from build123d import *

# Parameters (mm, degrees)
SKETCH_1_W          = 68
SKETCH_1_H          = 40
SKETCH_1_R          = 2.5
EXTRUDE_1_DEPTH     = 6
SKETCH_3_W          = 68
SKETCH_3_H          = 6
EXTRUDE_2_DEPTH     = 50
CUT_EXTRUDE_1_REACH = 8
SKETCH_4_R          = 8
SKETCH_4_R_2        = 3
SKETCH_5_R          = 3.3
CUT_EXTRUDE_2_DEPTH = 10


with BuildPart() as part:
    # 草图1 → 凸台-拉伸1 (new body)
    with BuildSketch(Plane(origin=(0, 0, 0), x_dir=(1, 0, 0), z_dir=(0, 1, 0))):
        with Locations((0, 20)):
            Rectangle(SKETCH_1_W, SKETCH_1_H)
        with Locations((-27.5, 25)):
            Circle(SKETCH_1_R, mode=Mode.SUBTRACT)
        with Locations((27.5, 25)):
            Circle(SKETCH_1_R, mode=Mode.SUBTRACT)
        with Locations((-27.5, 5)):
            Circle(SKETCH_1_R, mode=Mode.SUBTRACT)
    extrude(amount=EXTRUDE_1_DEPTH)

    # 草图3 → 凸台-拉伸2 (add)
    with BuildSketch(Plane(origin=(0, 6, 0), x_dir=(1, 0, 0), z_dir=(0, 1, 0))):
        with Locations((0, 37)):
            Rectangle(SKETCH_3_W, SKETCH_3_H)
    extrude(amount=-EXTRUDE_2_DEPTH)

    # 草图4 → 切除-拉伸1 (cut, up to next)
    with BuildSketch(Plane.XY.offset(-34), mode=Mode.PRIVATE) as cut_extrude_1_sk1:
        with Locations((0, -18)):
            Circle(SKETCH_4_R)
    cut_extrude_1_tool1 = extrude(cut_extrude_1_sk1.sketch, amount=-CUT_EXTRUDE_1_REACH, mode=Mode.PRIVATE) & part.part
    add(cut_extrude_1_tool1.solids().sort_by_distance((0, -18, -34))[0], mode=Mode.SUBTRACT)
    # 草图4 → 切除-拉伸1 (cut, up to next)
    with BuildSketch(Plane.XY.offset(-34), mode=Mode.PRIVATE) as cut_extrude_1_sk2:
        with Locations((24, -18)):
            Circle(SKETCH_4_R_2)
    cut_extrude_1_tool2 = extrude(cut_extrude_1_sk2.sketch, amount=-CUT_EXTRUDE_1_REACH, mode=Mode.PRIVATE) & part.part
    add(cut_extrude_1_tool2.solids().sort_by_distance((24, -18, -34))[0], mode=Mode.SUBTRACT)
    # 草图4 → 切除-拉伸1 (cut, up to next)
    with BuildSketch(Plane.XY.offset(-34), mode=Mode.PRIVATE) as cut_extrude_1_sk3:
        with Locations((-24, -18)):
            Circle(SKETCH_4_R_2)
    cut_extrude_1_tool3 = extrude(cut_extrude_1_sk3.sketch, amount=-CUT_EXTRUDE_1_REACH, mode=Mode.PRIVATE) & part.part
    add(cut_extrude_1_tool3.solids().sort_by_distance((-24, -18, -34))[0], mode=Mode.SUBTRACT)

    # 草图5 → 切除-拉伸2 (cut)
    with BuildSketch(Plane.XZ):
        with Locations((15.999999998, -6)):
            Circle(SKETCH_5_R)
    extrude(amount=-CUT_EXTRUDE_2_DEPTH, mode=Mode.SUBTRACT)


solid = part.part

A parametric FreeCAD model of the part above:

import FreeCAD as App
import Part
import Sketcher
from FreeCAD import Vector
Q = App.Units.Quantity

doc = App.newDocument("Part")
body = doc.addObject("PartDesign::Body", "Body")

# Sketch on XZ plane
sketch1 = body.newObject("Sketcher::SketchObject", "Sketch")
sketch1.AttachmentSupport = (doc.getObject("XZ_Plane"), [""])
sketch1.MapMode = "FlatFace"
sketch1.addGeometry([
    Part.LineSegment(Vector(-34, -40, 0), Vector(-34, 0, 0)),  # 0
    Part.LineSegment(Vector(-34, 0, 0), Vector(34, 0, 0)),  # 1
    Part.LineSegment(Vector(34, 0, 0), Vector(34, -40, 0)),  # 2
    Part.LineSegment(Vector(34, -40, 0), Vector(-34, -40, 0)),  # 3
    Part.Circle(Vector(-27.5, -5, 0), Vector(0, 0, 1), 2.5),  # 4
    Part.Circle(Vector(-27.5, -25, 0), Vector(0, 0, 1), 2.5),  # 5
    Part.Circle(Vector(27.5, -25, 0), Vector(0, 0, 1), 2.5),  # 6
], False)
sketch1.addConstraint([
    Sketcher.Constraint("Coincident", 0, 2, 1, 1),
    Sketcher.Constraint("Coincident", 1, 2, 2, 1),
    Sketcher.Constraint("Coincident", 2, 2, 3, 1),
    Sketcher.Constraint("Coincident", 3, 2, 0, 1),
    Sketcher.Constraint("Vertical", 0),
    Sketcher.Constraint("Horizontal", 1),
    Sketcher.Constraint("Vertical", 2),
    Sketcher.Constraint("Horizontal", 3),
    Sketcher.Constraint("Equal", 4, 5),
    Sketcher.Constraint("Equal", 5, 6),
    Sketcher.Constraint("Symmetric", 0, 2, 1, 2, -1, 1),
    Sketcher.Constraint("Symmetric", 5, 3, 6, 3, -2),
    Sketcher.Constraint("Vertical", 4, 3, 5, 3),
    Sketcher.Constraint("Diameter", 4, Q("5 mm")),
    Sketcher.Constraint("DistanceX", 1, 1, 1, 2, Q("68 mm")),
    Sketcher.Constraint("DistanceY", 0, 1, 0, 2, Q("40 mm")),
    Sketcher.Constraint("DistanceY", 4, 3, -1, 1, Q("5 mm")),
    Sketcher.Constraint("DistanceY", 5, 3, -1, 1, Q("25 mm")),
    Sketcher.Constraint("DistanceX", 5, 3, 6, 3, Q("55 mm")),
])
pad1 = body.newObject("PartDesign::Pad", "Pad")
pad1.Profile = sketch1
pad1.Length = 6
pad1.Reversed = True

# Sketch on XZ plane
sketch2 = body.newObject("Sketcher::SketchObject", "Sketch001")
sketch2.AttachmentSupport = (doc.getObject("XZ_Plane"), [""])
sketch2.MapMode = "FlatFace"
sketch2.AttachmentOffset = App.Placement(Vector(0, 0, -6), App.Rotation())
sketch2.addGeometry([
    Part.LineSegment(Vector(-34, -40, 0), Vector(-34, -34, 0)),
    Part.LineSegment(Vector(-34, -34, 0), Vector(34, -34, 0)),
    Part.LineSegment(Vector(34, -34, 0), Vector(34, -40, 0)),
    Part.LineSegment(Vector(34, -40, 0), Vector(-34, -40, 0)),
], False)
sketch2.addConstraint([
    Sketcher.Constraint("Coincident", 0, 2, 1, 1),
    Sketcher.Constraint("Coincident", 1, 2, 2, 1),
    Sketcher.Constraint("Coincident", 2, 2, 3, 1),
    Sketcher.Constraint("Coincident", 3, 2, 0, 1),
    Sketcher.Constraint("Vertical", 0),
    Sketcher.Constraint("Horizontal", 1),
    Sketcher.Constraint("Vertical", 2),
    Sketcher.Constraint("Horizontal", 3),
    Sketcher.Constraint("DistanceX", 1, 1, 1, 2, Q("68 mm")),
    Sketcher.Constraint("DistanceY", 0, 1, 0, 2, Q("6 mm")),
    Sketcher.Constraint("DistanceX", 0, 2, -1, 1, Q("34 mm")),
    Sketcher.Constraint("DistanceY", 0, 2, -1, 1, Q("34 mm")),
])
pad2 = body.newObject("PartDesign::Pad", "Pad001")
pad2.Profile = sketch2
pad2.Length = 50

# Sketch on XY plane
sketch3 = body.newObject("Sketcher::SketchObject", "Sketch002")
sketch3.AttachmentSupport = (doc.getObject("XY_Plane"), [""])
sketch3.MapMode = "FlatFace"
sketch3.AttachmentOffset = App.Placement(Vector(0, 0, -34), App.Rotation())
sketch3.addGeometry(Part.Circle(Vector(0, -18, 0), Vector(0, 0, 1), 8), False)
sketch3.addConstraint([
    Sketcher.Constraint("PointOnObject", 0, 3, -2),
    Sketcher.Constraint("Diameter", 0, Q("16 mm")),
    Sketcher.Constraint("DistanceY", 0, 3, -1, 1, Q("18 mm")),
])
pocket1 = body.newObject("PartDesign::Pocket", "Pocket")
pocket1.Profile = sketch3
pocket1.Type = "UpToFirst"

# Sketch on XY plane
sketch4 = body.newObject("Sketcher::SketchObject", "Sketch003")
sketch4.AttachmentSupport = (doc.getObject("XY_Plane"), [""])
sketch4.MapMode = "FlatFace"
sketch4.AttachmentOffset = App.Placement(Vector(0, 0, -34), App.Rotation())
sketch4.addGeometry(Part.Circle(Vector(24, -18, 0), Vector(0, 0, 1), 3), False)
sketch4.addConstraint([
    Sketcher.Constraint("Diameter", 0, Q("6 mm")),
    Sketcher.Constraint("DistanceX", -1, 1, 0, 3, Q("24 mm")),
    Sketcher.Constraint("DistanceY", 0, 3, -1, 1, Q("18 mm")),
])
pocket2 = body.newObject("PartDesign::Pocket", "Pocket001")
pocket2.Profile = sketch4
pocket2.Type = "UpToFirst"

# Sketch on XY plane
sketch5 = body.newObject("Sketcher::SketchObject", "Sketch004")
sketch5.AttachmentSupport = (doc.getObject("XY_Plane"), [""])
sketch5.MapMode = "FlatFace"
sketch5.AttachmentOffset = App.Placement(Vector(0, 0, -34), App.Rotation())
sketch5.addGeometry(Part.Circle(Vector(-24, -18, 0), Vector(0, 0, 1), 3), False)
sketch5.addConstraint([
    Sketcher.Constraint("Diameter", 0, Q("6 mm")),
    Sketcher.Constraint("DistanceX", 0, 3, -1, 1, Q("24 mm")),
    Sketcher.Constraint("DistanceY", 0, 3, -1, 1, Q("18 mm")),
])
pocket3 = body.newObject("PartDesign::Pocket", "Pocket002")
pocket3.Profile = sketch5
pocket3.Type = "UpToFirst"

# Sketch on XZ plane
sketch6 = body.newObject("Sketcher::SketchObject", "Sketch005")
sketch6.AttachmentSupport = (doc.getObject("XZ_Plane"), [""])
sketch6.MapMode = "FlatFace"
sketch6.addGeometry(Part.Circle(Vector(16, -6, 0), Vector(0, 0, 1), 3.3), False)
sketch6.addConstraint([
    Sketcher.Constraint("Diameter", 0, Q("6.6 mm")),
    Sketcher.Constraint("DistanceX", -1, 1, 0, 3, Q("16 mm")),
    Sketcher.Constraint("DistanceY", 0, 3, -1, 1, Q("6 mm")),
])
pocket4 = body.newObject("PartDesign::Pocket", "Pocket003")
pocket4.Profile = sketch6
pocket4.Length = 10

doc.recompute()
